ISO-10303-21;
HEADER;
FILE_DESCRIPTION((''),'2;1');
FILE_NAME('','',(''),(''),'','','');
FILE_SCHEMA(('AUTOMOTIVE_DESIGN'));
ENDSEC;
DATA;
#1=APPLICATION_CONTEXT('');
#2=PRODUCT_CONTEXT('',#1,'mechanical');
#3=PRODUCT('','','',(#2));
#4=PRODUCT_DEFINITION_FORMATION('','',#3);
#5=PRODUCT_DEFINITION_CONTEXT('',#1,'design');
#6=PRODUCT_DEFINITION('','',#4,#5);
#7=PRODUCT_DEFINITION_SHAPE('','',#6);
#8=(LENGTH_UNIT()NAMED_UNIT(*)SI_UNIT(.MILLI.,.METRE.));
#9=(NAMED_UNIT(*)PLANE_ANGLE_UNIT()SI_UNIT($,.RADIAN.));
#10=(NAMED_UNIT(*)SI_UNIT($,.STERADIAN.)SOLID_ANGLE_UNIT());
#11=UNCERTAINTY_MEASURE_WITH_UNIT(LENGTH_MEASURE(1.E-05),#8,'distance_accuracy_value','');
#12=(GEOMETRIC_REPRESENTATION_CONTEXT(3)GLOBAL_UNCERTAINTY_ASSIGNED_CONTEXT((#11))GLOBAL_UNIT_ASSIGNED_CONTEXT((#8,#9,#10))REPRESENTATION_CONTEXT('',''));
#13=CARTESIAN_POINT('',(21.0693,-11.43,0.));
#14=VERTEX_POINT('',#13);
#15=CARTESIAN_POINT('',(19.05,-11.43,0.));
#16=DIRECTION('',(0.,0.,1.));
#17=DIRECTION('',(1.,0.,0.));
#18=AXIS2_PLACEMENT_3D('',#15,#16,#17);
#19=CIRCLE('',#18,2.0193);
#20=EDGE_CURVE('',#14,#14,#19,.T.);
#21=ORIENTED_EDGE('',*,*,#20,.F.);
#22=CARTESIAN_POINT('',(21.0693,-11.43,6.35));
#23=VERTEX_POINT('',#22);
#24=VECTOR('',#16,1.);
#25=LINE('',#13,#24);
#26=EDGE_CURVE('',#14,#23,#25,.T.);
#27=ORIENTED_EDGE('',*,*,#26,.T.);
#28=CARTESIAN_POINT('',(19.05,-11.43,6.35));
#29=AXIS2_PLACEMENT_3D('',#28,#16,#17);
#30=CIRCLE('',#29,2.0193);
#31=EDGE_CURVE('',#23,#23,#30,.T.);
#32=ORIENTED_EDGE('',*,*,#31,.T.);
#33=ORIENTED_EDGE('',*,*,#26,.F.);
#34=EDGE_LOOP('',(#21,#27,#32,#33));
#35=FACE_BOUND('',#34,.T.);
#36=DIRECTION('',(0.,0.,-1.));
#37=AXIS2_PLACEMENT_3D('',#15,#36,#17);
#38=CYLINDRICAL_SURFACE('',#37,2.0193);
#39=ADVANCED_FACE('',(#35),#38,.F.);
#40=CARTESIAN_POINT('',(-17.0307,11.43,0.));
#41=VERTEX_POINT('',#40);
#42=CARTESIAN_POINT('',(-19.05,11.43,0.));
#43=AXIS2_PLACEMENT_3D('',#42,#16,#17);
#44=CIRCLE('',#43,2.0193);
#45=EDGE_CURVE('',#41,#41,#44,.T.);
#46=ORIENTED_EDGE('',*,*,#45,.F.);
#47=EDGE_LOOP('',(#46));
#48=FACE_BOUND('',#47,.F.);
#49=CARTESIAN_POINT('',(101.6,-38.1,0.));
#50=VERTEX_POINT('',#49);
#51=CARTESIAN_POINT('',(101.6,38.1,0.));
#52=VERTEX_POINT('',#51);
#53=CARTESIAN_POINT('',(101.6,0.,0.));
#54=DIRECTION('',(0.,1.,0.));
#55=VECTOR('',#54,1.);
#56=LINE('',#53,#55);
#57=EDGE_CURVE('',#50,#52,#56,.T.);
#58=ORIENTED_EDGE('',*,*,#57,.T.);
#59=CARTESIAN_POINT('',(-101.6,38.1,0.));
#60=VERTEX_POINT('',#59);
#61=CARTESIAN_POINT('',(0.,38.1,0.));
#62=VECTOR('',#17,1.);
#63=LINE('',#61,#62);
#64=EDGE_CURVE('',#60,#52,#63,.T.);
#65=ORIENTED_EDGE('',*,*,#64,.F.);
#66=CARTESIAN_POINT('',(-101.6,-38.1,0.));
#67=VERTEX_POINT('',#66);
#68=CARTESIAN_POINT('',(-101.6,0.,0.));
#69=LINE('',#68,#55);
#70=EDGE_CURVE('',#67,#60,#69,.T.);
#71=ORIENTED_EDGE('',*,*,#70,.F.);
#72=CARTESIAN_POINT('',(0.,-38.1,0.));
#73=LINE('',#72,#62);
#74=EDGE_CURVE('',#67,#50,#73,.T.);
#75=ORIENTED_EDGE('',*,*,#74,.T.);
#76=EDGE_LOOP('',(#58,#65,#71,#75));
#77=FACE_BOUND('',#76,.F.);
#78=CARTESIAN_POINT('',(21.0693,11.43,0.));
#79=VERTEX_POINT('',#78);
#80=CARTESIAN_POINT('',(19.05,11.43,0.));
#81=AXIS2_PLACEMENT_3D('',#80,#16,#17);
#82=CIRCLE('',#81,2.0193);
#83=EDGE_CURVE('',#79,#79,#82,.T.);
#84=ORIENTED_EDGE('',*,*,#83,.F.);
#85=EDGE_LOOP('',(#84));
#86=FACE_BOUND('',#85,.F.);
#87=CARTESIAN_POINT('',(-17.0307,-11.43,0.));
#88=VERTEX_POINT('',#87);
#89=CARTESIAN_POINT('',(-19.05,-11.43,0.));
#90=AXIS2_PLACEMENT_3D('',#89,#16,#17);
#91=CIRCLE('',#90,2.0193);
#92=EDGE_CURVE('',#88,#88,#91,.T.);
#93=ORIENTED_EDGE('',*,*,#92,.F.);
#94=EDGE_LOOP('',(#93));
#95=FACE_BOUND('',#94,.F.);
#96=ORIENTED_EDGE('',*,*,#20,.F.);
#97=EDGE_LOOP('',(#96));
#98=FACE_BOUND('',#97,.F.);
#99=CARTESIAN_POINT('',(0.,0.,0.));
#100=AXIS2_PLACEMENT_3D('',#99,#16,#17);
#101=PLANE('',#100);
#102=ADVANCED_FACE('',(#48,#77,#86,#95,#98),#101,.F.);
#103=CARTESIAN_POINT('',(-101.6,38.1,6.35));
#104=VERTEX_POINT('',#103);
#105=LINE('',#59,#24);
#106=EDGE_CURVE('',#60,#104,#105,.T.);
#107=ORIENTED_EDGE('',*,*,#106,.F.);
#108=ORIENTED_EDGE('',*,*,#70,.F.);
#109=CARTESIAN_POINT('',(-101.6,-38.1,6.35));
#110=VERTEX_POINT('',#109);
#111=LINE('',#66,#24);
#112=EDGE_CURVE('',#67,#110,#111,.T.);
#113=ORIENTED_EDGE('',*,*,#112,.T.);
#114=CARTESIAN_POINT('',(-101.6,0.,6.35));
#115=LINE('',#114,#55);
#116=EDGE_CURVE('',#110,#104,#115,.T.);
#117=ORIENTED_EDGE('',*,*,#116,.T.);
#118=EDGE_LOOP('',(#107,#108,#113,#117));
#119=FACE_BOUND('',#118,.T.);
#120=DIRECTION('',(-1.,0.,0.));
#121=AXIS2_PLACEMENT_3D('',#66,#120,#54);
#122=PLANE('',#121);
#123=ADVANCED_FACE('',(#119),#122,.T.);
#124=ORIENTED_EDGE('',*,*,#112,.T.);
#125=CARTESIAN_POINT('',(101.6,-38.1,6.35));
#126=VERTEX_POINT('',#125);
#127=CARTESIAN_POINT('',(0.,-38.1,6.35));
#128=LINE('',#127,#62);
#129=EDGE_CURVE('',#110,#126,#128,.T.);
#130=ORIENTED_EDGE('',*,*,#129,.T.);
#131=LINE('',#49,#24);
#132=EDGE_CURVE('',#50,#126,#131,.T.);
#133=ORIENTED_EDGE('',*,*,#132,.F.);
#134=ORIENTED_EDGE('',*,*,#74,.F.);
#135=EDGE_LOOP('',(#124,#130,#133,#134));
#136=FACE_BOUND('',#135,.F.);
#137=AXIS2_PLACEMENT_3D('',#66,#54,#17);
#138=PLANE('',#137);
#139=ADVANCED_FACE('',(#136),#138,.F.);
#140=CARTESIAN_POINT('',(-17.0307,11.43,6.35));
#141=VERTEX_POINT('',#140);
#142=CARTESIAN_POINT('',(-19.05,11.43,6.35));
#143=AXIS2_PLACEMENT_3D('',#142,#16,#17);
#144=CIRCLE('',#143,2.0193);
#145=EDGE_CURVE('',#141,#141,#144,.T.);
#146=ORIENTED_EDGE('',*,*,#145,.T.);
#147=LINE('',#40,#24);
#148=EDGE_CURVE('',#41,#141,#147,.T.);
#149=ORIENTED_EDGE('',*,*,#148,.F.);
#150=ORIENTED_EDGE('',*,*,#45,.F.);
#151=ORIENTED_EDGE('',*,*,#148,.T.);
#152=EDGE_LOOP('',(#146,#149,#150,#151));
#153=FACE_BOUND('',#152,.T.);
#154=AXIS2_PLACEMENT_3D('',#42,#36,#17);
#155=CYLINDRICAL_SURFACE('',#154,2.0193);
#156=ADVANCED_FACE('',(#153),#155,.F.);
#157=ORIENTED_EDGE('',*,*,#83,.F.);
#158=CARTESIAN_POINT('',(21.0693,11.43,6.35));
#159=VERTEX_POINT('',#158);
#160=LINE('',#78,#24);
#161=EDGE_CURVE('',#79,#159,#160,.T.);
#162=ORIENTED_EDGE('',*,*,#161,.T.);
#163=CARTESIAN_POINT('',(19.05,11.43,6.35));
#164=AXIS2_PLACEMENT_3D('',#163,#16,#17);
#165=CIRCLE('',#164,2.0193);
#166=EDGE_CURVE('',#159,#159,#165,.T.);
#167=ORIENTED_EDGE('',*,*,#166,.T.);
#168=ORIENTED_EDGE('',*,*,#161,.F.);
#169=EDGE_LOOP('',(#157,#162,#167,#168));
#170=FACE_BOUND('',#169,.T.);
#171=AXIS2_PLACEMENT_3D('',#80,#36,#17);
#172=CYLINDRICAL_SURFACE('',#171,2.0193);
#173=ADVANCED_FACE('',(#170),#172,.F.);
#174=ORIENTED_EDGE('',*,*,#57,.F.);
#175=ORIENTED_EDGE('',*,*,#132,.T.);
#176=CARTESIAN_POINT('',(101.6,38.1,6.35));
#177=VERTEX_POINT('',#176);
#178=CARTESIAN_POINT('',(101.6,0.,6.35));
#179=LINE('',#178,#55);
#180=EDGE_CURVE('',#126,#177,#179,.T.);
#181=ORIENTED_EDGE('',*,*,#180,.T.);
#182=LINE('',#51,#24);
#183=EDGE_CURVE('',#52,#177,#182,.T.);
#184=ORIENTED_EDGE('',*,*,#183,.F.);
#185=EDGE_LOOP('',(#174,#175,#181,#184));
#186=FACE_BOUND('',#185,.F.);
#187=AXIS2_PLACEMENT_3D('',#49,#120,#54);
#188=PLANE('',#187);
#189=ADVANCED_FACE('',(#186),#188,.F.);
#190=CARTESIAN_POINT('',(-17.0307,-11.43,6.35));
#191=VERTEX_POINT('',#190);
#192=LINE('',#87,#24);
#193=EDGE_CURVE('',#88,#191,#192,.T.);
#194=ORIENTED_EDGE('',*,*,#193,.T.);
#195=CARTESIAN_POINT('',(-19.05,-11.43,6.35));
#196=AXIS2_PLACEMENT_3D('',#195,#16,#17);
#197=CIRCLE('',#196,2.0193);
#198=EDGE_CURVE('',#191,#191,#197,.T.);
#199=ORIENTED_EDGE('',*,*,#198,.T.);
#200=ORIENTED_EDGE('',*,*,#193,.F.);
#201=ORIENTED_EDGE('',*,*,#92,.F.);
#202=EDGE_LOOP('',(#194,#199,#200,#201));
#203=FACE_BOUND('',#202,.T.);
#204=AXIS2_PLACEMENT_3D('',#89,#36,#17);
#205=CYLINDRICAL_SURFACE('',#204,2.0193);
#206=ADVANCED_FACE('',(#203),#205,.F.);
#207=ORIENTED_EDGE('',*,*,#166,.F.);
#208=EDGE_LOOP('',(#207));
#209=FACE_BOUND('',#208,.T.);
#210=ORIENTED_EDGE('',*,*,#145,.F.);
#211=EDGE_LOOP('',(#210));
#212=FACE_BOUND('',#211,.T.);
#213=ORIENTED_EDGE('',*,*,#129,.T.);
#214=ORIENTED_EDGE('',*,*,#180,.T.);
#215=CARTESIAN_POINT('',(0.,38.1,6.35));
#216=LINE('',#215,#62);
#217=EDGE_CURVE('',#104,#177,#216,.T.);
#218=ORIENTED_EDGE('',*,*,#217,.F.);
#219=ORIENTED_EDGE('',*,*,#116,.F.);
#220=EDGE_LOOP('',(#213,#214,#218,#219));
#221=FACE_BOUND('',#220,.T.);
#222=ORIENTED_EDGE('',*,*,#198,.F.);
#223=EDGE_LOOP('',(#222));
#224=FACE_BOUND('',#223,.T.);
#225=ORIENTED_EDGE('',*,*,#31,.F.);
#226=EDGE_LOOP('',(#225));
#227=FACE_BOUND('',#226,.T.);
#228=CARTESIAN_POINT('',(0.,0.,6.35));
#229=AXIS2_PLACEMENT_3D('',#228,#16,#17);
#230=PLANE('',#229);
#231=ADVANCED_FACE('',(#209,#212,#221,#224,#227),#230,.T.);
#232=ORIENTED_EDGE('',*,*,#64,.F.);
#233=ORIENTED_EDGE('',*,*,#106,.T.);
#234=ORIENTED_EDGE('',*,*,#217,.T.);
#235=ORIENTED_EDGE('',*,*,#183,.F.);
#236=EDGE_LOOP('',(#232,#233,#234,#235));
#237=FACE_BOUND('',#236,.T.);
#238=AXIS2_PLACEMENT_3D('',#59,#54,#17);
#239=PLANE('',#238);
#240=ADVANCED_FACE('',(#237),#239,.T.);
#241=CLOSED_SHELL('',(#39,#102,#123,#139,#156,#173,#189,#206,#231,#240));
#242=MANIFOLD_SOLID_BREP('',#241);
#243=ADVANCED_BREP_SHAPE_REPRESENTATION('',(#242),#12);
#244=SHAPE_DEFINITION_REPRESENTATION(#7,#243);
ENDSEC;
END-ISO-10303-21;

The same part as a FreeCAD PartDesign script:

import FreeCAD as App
import Part
import Sketcher

V = App.Vector
Q = App.Units.Quantity

doc = App.newDocument("Part")
body = doc.addObject("PartDesign::Body", "Body")

# Sketch on XY plane
sketch1 = body.newObject("Sketcher::SketchObject", "Sketch")
sketch1.AttachmentSupport = (doc.getObject("XY_Plane"), [""])
sketch1.MapMode = "FlatFace"
sketch1.addGeometry([
    Part.LineSegment(V(-101.6, 38.1, 0), V(-101.6, -38.1, 0)),  # 0
    Part.LineSegment(V(-101.6, -38.1, 0), V(101.6, -38.1, 0)),  # 1
    Part.LineSegment(V(101.6, -38.1, 0), V(101.6, 38.1, 0)),  # 2
    Part.LineSegment(V(101.6, 38.1, 0), V(-101.6, 38.1, 0)),  # 3
    Part.Circle(V(-19.1, -11.4, 0), V(0, 0, 1), 2),  # 4
    Part.Circle(V(19.1, -11.4, 0), V(0, 0, 1), 2),  # 5
    Part.Circle(V(-19.1, 11.4, 0), V(0, 0, 1), 2),  # 6
    Part.Circle(V(19.1, 11.4, 0), V(0, 0, 1), 2),  # 7
], False)
sketch1.addConstraint([
    Sketcher.Constraint("Coincident", 0, 2, 1, 1),
    Sketcher.Constraint("Coincident", 1, 2, 2, 1),
    Sketcher.Constraint("Coincident", 2, 2, 3, 1),
    Sketcher.Constraint("Coincident", 3, 2, 0, 1),
    Sketcher.Constraint("Vertical", 0),
    Sketcher.Constraint("Horizontal", 1),
    Sketcher.Constraint("Vertical", 2),
    Sketcher.Constraint("Horizontal", 3),
    Sketcher.Constraint("Equal", 4, 5),
    Sketcher.Constraint("Equal", 5, 6),
    Sketcher.Constraint("Equal", 6, 7),
    Sketcher.Constraint("Symmetric", 5, 3, 6, 3, -1, 1),
    Sketcher.Constraint("Symmetric", 4, 3, 7, 3, -1, 1),
    Sketcher.Constraint("Symmetric", 0, 2, 2, 2, -1, 1),
    Sketcher.Constraint("Symmetric", 4, 3, 5, 3, -2),
    Sketcher.Constraint("DistanceX", 1, 1, 1, 2, Q("8 in")),
    Sketcher.Constraint("DistanceY", 0, 2, 0, 1, Q("3 in")),
    Sketcher.Constraint("Diameter", 4, Q("0.159 in")),
    Sketcher.Constraint("DistanceX", 4, 3, 5, 3, Q("1.5 in")),
    Sketcher.Constraint("DistanceY", 4, 3, 6, 3, Q("0.9 in")),
])
pad1 = body.newObject("PartDesign::Pad", "Pad")
pad1.Profile = sketch1
pad1.Length = Q("0.25 in")

doc.recompute()
